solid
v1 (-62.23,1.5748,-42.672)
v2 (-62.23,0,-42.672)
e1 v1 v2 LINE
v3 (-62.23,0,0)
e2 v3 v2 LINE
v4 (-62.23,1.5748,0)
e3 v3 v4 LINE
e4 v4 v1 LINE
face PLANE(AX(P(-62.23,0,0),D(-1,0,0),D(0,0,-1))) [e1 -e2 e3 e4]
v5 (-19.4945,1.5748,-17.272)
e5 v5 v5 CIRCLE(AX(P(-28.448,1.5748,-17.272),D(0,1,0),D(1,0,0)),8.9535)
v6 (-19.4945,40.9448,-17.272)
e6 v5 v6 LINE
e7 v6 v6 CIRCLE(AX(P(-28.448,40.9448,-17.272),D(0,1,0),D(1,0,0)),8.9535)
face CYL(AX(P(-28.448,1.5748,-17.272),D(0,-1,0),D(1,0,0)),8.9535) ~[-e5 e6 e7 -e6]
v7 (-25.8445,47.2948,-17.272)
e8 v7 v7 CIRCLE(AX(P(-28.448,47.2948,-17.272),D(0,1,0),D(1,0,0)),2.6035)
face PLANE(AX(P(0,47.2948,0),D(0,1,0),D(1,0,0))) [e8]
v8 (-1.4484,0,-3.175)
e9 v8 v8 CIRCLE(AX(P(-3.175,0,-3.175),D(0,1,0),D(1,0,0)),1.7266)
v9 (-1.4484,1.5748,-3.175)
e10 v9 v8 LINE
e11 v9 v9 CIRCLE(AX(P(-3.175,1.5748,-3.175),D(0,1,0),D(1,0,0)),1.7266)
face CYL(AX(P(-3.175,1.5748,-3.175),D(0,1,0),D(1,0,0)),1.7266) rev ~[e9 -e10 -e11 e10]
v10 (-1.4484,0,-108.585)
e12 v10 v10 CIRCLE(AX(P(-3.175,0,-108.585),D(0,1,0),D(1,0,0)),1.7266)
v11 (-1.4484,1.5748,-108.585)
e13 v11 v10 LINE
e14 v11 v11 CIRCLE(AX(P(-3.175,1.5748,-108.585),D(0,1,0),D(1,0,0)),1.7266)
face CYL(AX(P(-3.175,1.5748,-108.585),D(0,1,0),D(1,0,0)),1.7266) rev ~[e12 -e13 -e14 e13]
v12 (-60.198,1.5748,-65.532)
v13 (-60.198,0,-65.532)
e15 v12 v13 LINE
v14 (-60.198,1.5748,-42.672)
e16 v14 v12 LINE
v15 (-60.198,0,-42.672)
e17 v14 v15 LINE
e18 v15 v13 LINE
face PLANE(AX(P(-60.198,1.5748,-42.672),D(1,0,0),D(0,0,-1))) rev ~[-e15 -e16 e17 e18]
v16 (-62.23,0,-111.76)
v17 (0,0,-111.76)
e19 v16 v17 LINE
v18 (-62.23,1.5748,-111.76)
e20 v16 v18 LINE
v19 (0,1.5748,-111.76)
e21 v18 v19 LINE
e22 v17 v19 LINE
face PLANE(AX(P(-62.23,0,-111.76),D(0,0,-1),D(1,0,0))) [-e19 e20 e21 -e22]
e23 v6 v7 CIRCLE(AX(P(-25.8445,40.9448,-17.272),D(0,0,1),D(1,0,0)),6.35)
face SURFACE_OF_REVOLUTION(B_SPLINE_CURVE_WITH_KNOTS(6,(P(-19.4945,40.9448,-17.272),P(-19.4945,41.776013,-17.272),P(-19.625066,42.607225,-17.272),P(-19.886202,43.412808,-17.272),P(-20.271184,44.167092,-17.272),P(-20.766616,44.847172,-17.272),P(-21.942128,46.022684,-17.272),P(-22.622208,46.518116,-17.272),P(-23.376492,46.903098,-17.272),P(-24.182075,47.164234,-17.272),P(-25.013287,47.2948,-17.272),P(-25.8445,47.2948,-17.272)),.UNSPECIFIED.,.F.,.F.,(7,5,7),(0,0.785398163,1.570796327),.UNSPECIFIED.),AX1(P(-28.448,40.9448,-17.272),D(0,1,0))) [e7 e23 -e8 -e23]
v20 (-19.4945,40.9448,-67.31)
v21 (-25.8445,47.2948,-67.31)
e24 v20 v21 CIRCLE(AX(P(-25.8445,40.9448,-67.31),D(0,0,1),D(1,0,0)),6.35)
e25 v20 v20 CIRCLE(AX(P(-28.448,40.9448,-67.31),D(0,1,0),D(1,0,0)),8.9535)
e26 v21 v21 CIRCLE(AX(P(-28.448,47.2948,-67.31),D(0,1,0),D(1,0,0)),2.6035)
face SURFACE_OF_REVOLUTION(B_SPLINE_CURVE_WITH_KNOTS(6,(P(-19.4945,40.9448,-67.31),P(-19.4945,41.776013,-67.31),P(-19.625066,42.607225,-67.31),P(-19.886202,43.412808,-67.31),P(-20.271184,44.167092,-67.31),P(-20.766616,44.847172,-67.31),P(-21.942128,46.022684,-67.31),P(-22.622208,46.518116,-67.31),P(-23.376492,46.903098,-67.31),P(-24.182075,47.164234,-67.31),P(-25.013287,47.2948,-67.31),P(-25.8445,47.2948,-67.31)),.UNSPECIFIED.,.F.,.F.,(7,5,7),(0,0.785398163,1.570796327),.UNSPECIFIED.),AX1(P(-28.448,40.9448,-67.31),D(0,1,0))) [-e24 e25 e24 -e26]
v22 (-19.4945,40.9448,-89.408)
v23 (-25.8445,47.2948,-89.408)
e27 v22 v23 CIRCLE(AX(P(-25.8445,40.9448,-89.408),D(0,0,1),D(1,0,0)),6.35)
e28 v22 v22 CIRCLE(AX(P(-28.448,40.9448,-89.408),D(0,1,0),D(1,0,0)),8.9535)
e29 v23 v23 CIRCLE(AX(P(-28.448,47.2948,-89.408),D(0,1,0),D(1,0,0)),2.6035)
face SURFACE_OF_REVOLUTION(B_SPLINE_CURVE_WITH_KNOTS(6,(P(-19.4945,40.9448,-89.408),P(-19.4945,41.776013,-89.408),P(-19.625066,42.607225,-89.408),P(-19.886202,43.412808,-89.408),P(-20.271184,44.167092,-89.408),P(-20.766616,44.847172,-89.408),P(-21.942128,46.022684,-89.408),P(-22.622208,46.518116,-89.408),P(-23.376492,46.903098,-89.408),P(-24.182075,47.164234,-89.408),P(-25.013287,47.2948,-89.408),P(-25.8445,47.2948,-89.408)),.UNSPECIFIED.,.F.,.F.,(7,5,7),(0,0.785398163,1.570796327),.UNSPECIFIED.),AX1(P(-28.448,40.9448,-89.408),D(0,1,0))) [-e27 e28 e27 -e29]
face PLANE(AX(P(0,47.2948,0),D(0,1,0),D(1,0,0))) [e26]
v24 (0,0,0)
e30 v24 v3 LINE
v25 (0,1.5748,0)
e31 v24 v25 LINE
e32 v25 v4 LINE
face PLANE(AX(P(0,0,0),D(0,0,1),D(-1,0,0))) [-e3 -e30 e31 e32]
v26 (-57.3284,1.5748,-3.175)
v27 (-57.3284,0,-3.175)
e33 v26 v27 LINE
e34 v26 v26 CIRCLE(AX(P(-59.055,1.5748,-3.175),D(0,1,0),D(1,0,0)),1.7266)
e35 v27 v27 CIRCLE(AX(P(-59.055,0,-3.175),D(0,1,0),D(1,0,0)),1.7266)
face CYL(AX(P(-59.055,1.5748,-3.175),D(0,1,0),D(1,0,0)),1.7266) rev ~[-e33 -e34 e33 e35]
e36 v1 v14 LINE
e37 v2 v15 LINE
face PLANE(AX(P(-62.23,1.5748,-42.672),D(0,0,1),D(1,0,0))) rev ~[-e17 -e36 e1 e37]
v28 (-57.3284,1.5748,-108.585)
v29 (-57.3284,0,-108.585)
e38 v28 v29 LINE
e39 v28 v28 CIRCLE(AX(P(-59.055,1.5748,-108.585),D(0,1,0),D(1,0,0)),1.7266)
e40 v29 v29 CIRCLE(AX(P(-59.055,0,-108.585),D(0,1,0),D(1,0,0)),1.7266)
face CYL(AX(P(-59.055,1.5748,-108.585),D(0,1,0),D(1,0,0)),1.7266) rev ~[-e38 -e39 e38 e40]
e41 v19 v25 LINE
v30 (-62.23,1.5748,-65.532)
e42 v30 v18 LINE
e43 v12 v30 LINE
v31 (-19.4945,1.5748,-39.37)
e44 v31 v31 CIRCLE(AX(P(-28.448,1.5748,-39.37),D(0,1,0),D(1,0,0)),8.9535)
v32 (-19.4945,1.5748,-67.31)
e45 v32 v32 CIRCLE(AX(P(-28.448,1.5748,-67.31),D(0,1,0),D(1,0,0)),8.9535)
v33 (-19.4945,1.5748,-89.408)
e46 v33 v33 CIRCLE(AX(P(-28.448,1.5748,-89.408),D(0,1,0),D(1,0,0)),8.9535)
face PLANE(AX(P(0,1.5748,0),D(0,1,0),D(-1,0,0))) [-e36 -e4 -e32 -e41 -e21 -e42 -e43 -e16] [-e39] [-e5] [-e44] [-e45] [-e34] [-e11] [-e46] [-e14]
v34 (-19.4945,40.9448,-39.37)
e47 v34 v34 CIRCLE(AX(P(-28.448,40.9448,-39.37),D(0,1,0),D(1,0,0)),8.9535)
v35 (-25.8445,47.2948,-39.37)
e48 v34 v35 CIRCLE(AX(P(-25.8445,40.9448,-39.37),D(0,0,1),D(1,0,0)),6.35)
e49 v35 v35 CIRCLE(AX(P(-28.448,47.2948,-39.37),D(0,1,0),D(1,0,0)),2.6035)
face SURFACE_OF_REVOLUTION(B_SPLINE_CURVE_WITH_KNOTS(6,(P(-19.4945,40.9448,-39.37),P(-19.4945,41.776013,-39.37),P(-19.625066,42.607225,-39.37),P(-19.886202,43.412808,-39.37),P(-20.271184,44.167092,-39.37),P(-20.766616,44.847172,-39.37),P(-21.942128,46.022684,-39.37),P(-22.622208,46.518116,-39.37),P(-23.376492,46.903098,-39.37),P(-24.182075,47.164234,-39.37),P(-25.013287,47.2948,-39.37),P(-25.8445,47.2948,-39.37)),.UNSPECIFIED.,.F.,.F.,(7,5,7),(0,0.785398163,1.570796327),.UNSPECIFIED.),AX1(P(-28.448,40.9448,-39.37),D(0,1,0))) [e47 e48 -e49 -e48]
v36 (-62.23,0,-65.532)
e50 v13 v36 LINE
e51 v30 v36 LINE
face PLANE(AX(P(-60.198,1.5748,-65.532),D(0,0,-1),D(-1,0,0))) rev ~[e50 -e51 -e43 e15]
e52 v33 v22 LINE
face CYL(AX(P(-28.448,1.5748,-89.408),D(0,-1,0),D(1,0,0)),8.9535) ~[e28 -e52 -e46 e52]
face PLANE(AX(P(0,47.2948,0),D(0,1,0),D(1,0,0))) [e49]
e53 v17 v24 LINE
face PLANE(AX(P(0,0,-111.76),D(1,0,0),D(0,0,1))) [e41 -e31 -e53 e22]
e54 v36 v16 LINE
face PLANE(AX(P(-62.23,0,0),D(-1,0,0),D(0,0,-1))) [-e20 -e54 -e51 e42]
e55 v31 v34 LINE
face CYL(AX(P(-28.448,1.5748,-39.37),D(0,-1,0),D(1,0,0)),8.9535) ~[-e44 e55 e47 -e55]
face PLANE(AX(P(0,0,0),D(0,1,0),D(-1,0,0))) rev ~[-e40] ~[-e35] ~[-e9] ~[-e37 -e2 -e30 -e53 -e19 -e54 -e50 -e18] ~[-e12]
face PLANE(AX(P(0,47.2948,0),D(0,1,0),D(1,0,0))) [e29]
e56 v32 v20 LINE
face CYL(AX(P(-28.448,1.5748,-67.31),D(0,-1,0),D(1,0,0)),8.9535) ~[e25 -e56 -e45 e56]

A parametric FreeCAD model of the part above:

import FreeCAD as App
import Part
import Sketcher

V = App.Vector
Q = App.Units.Quantity


def edges_at(feature, points):
    """Names of the edges that pass closest to the given points."""
    edges = feature.Shape.Edges
    near = lambda p: min(range(len(edges)), key=lambda i: edges[i].distToShape(Part.Vertex(*p))[0])
    return sorted({f"Edge{near(p) + 1}" for p in points})

doc = App.newDocument("Part")
body = doc.addObject("PartDesign::Body", "Body")

sketch1 = body.newObject("Sketcher::SketchObject", "Sketch")
sketch1.AttachmentSupport = (doc.getObject("XZ_Plane"), [""])
sketch1.MapMode = "FlatFace"
sketch1.addGeometry([
    Part.LineSegment(V(-62, 0, 0), V(0, 0, 0)),
    Part.LineSegment(V(0, 0, 0), V(0, -112, 0)),
    Part.LineSegment(V(0, -112, 0), V(-62, -112, 0)),
    Part.LineSegment(V(-62, -112, 0), V(-62, 0, 0)),
], False)
sketch1.addConstraint([
    Sketcher.Constraint("Coincident", 0, 2, 1, 1),
    Sketcher.Constraint("Coincident", 1, 2, 2, 1),
    Sketcher.Constraint("Coincident", 2, 2, 3, 1),
    Sketcher.Constraint("Coincident", 3, 2, 0, 1),
    Sketcher.Constraint("Horizontal", 0),
    Sketcher.Constraint("Vertical", 1),
    Sketcher.Constraint("Horizontal", 2),
    Sketcher.Constraint("Vertical", 3),
    Sketcher.Constraint("Coincident", 0, 2, -1, 1),
    Sketcher.Constraint("DistanceY", 1, 2, 1, 1, Q("4.4 in")),
    Sketcher.Constraint("DistanceX", 0, 1, 0, 2, Q("2.45 in")),
])
pad1 = body.newObject("PartDesign::Pad", "Pad")
pad1.Profile = sketch1
pad1.Length = Q("0.062 in")
pad1.Reversed = True

sketch2 = body.newObject("Sketcher::SketchObject", "Sketch001")
sketch2.AttachmentSupport = (doc.getObject("XZ_Plane"), [""])
sketch2.MapMode = "FlatFace"
sketch2.AttachmentOffset = App.Placement(V(0, 0, -0.062 * 25.4), App.Rotation())
sketch2.addGeometry([
    Part.Circle(V(-59.1, -3.2, 0), V(0, 0, 1), 1.7),
    Part.Circle(V(-59.1, -108.6, 0), V(0, 0, 1), 1.7),
    Part.Circle(V(-3.2, -108.6, 0), V(0, 0, 1), 1.7),
    Part.Circle(V(-3.2, -3.2, 0), V(0, 0, 1), 1.7),
], False)
sketch2.addConstraint([
    Sketcher.Constraint("Equal", 0, 1),
    Sketcher.Constraint("Equal", 1, 2),
    Sketcher.Constraint("Equal", 2, 3),
    Sketcher.Constraint("Horizontal", 1, 3, 2, 3),
    Sketcher.Constraint("Horizontal", 0, 3, 3, 3),
    Sketcher.Constraint("Vertical", 0, 3, 1, 3),
    Sketcher.Constraint("Vertical", 2, 3, 3, 3),
    Sketcher.Constraint("Diameter", 0, 3.4532),
    Sketcher.Constraint("DistanceY", 0, 3, -1, 1, Q("0.125 in")),
    Sketcher.Constraint("DistanceX", 2, 3, -1, 1, Q("0.125 in")),
    Sketcher.Constraint("DistanceX", 1, 3, 2, 3, Q("2.2 in")),
    Sketcher.Constraint("DistanceY", 1, 3, 0, 3, Q("4.15 in")),
])
pocket1 = body.newObject("PartDesign::Pocket", "Pocket")
pocket1.Profile = sketch2
pocket1.Length = Q("0.1 in")
pocket1.Reversed = True

sketch3 = body.newObject("Sketcher::SketchObject", "Sketch002")
sketch3.AttachmentSupport = (doc.getObject("XZ_Plane"), [""])
sketch3.MapMode = "FlatFace"
sketch3.AttachmentOffset = App.Placement(V(0, 0, -0.062 * 25.4), App.Rotation())
sketch3.addGeometry([
    Part.Circle(V(-28, -17, 0), V(0, 0, 1), 9),
    Part.Circle(V(-28, -39, 0), V(0, 0, 1), 9),
    Part.Circle(V(-28, -67, 0), V(0, 0, 1), 9),
    Part.Circle(V(-28, -89, 0), V(0, 0, 1), 9),
], False)
sketch3.addConstraint([
    Sketcher.Constraint("Equal", 0, 1),
    Sketcher.Constraint("Equal", 1, 2),
    Sketcher.Constraint("Equal", 2, 3),
    Sketcher.Constraint("Vertical", 0, 3, 1, 3),
    Sketcher.Constraint("Vertical", 1, 3, 2, 3),
    Sketcher.Constraint("Vertical", 2, 3, 3, 3),
    Sketcher.Constraint("Diameter", 0, Q("0.705 in")),
    Sketcher.Constraint("DistanceY", 2, 3, 1, 3, Q("1.1 in")),
    Sketcher.Constraint("DistanceY", 0, 3, -1, 1, Q("0.68 in")),
    Sketcher.Constraint("DistanceY", 1, 3, 0, 3, Q("0.87 in")),
    Sketcher.Constraint("DistanceY", 3, 3, 2, 3, Q("0.87 in")),
    Sketcher.Constraint("DistanceX", 0, 3, -1, 1, Q("1.12 in")),
])
pad2 = body.newObject("PartDesign::Pad", "Pad001")
pad2.Profile = sketch3
pad2.Length = Q("1.8 in")
pad2.Reversed = True
doc.recompute()

fillet = body.newObject("PartDesign::Fillet", "Fillet")
fillet.Base = (pad2, edges_at(pad2, [
    (-37.401, 47.295, -17.272),
    (-37.401, 47.295, -39.37),
    (-37.401, 47.295, -67.31),
    (-37.401, 47.295, -89.408),
]))
fillet.Radius = Q("0.25 in")

sketch4 = body.newObject("Sketcher::SketchObject", "Sketch003")
sketch4.AttachmentSupport = (doc.getObject("XZ_Plane"), [""])
sketch4.MapMode = "FlatFace"
sketch4.AttachmentOffset = App.Placement(V(0, 0, -0.062 * 25.4), App.Rotation())
sketch4.addGeometry([
    Part.LineSegment(V(-60.2, -65.5, 0), V(-62.2, -65.5, 0)),
    Part.LineSegment(V(-62.2, -65.5, 0), V(-62.2, -42.7, 0)),
    Part.LineSegment(V(-62.2, -42.7, 0), V(-60.2, -42.7, 0)),
    Part.LineSegment(V(-60.2, -42.7, 0), V(-60.2, -65.5, 0)),
], False)
sketch4.addConstraint([
    Sketcher.Constraint("Coincident", 0, 2, 1, 1),
    Sketcher.Constraint("Coincident", 1, 2, 2, 1),
    Sketcher.Constraint("Coincident", 2, 2, 3, 1),
    Sketcher.Constraint("Coincident", 3, 2, 0, 1),
    Sketcher.Constraint("Horizontal", 0),
    Sketcher.Constraint("Vertical", 1),
    Sketcher.Constraint("Horizontal", 2),
    Sketcher.Constraint("Vertical", 3),
    Sketcher.Constraint("DistanceY", 1, 1, 1, 2, Q("0.9 in")),
    Sketcher.Constraint("DistanceX", 0, 2, 0, 1, Q("0.08 in")),
    Sketcher.Constraint("DistanceY", 1, 2, -1, 1, Q("1.68 in")),
    Sketcher.Constraint("DistanceX", 0, 2, -1, 1, Q("2.45 in")),
])
pocket2 = body.newObject("PartDesign::Pocket", "Pocket001")
pocket2.Profile = sketch4
pocket2.Length = Q("1.8 in")
pocket2.Reversed = True

doc.recompute()
